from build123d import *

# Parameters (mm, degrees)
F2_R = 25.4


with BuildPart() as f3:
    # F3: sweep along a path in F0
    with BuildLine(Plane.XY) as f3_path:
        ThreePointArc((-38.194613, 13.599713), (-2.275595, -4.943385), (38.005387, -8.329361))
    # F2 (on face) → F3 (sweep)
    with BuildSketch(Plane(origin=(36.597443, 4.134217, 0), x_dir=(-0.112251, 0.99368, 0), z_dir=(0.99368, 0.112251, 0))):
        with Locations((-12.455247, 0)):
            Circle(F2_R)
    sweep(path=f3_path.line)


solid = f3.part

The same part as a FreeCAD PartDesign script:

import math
import FreeCAD as App
import Part
import Sketcher

V = App.Vector
Q = App.Units.Quantity

doc = App.newDocument("Part")
body = doc.addObject("PartDesign::Body", "Body")

sketch1 = doc.addObject("Sketcher::SketchObject", "Sketch")
body.addObject(sketch1)
sketch1.Placement = App.Placement(V(36.597443, 4.134217, 0), App.Rotation(V(-0.112250987, 0.993679886, 0), V(0, 0, 1), V(0.993679886, 0.112250987, 0), "ZXY"))
sketch1.addGeometry(Part.Circle(V(-12, 0, 0), V(0, 0, 1), 25), False)
sketch1.addConstraint(Sketcher.Constraint("PointOnObject", 0, 3, -1))
sketch1.addConstraint(Sketcher.Constraint("Diameter", 0, Q("2 in")))
sketch1.addConstraint(Sketcher.Constraint("DistanceX", 0, 3, -1, 1, Q("12.455247 mm")))

sketch2 = doc.addObject("Sketcher::SketchObject", "Sketch001")
body.addObject(sketch2)
sketch2.AttachmentSupport = (doc.XY_Plane, [""])
sketch2.MapMode = "FlatFace"
sketch2.addGeometry(Part.ArcOfCircle(Part.Circle(V(26, 95, 0), V(0, 0, 1), 104), math.radians(-129), math.radians(-84)), False)
sketch2.addConstraint(Sketcher.Constraint("DistanceX", 0, 1, 0, 2, Q("3 in")))
sketch2.addConstraint(Sketcher.Constraint("Radius", 0, Q("103.600842 mm")))
sketch2.addConstraint(Sketcher.Constraint("DistanceX", -1, 1, 0, 3, Q("26.376122 mm")))
sketch2.addConstraint(Sketcher.Constraint("DistanceY", 0, 2, -1, 1, Q("8.329361 mm")))
sketch2.addConstraint(Sketcher.Constraint("DistanceY", -1, 1, 0, 3, Q("94.616715 mm")))
doc.recompute()

additivepipe = doc.addObject("PartDesign::AdditivePipe", "AdditivePipe")
body.addObject(additivepipe)
additivepipe.Profile = sketch1
additivepipe.Spine = (sketch2, ["Edge1"])

doc.recompute()
